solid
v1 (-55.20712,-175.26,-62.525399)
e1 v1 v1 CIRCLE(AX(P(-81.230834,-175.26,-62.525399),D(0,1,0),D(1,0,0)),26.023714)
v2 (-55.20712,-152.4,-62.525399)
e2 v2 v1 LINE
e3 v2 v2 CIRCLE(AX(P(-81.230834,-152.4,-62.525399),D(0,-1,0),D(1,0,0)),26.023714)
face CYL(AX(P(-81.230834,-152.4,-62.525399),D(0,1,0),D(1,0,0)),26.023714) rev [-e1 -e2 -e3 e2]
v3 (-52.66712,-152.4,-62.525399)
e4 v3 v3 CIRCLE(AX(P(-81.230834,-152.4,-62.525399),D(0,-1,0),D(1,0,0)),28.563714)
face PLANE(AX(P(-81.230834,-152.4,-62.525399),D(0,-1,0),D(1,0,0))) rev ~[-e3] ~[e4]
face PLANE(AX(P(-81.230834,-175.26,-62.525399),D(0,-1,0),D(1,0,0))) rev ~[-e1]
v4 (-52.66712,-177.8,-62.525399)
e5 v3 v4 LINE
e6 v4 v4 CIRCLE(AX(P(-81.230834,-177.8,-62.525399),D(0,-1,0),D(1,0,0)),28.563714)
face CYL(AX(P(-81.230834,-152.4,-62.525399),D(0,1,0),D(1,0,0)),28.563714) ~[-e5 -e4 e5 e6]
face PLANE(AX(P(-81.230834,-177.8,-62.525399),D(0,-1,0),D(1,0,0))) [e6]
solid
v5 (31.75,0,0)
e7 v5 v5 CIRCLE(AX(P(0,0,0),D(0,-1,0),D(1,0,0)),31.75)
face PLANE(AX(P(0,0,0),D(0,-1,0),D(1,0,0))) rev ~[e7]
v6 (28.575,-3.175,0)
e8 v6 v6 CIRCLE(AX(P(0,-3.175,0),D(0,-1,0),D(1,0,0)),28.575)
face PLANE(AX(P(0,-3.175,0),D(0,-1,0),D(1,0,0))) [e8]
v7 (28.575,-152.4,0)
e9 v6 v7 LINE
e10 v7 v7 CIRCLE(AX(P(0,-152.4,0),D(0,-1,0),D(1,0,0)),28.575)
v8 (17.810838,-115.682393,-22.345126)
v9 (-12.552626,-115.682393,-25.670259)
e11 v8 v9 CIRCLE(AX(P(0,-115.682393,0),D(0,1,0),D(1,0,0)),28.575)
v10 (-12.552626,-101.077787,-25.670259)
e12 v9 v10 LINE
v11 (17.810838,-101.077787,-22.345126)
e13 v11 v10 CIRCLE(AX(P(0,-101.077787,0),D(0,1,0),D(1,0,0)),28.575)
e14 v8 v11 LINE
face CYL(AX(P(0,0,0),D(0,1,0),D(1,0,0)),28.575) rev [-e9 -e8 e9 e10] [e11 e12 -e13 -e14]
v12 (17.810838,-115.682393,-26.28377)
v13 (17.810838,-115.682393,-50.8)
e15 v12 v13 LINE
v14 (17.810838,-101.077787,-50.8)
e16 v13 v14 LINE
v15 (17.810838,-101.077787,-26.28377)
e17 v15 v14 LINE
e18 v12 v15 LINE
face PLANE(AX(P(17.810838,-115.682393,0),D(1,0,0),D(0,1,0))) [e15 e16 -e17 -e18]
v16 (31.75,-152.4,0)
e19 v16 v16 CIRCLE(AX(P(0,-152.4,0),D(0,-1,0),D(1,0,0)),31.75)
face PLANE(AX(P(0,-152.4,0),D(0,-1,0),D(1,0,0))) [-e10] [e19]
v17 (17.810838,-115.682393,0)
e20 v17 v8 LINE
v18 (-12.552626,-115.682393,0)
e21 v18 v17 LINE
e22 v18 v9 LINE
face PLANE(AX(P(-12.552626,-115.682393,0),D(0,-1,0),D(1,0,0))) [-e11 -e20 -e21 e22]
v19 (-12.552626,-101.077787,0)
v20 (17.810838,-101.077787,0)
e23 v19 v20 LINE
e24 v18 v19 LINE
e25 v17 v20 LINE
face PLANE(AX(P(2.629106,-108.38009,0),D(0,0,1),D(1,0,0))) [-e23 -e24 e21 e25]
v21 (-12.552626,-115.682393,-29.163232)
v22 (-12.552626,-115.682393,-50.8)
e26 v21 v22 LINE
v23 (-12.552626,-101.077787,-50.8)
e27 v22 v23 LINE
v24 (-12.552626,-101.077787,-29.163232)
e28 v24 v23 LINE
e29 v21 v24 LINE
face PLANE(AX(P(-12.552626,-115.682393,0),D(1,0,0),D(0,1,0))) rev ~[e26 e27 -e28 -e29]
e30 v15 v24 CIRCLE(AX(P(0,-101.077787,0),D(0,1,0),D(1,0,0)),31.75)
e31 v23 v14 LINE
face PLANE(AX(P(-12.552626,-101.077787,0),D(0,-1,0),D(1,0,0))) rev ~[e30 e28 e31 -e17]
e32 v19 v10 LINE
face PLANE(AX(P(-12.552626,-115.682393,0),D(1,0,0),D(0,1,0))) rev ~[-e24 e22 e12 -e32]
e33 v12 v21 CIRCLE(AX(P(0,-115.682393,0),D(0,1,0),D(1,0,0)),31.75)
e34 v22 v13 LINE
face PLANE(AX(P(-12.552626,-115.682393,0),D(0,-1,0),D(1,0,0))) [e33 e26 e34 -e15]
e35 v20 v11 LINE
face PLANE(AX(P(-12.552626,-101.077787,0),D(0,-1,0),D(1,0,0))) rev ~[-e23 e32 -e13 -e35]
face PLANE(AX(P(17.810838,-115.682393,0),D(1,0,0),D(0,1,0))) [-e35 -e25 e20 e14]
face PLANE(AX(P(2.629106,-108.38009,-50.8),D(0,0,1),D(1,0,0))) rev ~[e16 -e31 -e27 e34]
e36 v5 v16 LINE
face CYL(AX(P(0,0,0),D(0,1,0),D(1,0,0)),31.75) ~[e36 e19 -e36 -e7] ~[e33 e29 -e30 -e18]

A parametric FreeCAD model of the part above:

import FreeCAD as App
import Part
import Sketcher

V = App.Vector
Q = App.Units.Quantity


def faces_at(feature, points):
    """Names of the faces that lie closest to the given points."""
    faces = feature.Shape.Faces
    near = lambda p: min(range(len(faces)), key=lambda i: faces[i].distToShape(Part.Vertex(*p))[0])
    return sorted({f"Face{near(p) + 1}" for p in points})


def add_polygon(sketch, points):
    """Adds a closed chain of lines whose ends are joined by coincident constraints."""
    first, n = sketch.GeometryCount, len(points)
    for a, b in zip(points, points[1:] + points[:1]):
        sketch.addGeometry(Part.LineSegment(App.Vector(*a, 0), App.Vector(*b, 0)), False)
    for i in range(n):
        sketch.addConstraint(Sketcher.Constraint("Coincident", first + i, 2, first + (i + 1) % n, 1))

doc = App.newDocument("Part")
body = doc.addObject("PartDesign::Body", "Body")

# Sketch on XZ plane
sketch1 = body.newObject("Sketcher::SketchObject", "Sketch")
sketch1.AttachmentSupport = (doc.getObject("XZ_Plane"), [""])
sketch1.MapMode = "FlatFace"
sketch1.addGeometry(Part.Circle(V(0, 0, 0), V(0, 0, 1), 29), False)
sketch1.addConstraint([
    Sketcher.Constraint("Coincident", 0, 3, -1, 1),
    Sketcher.Constraint("Diameter", 0, Q("2.25 in")),
])
pad1 = body.newObject("PartDesign::Pad", "Pad")
pad1.Profile = sketch1
pad1.Length = Q("0.125 in")

# Sketch on XZ plane
sketch2 = body.newObject("Sketcher::SketchObject", "Sketch001")
sketch2.AttachmentSupport = (doc.getObject("XZ_Plane"), [""])
sketch2.MapMode = "FlatFace"
sketch2.addGeometry([
    Part.Circle(V(0, 0, 0), V(0, 0, 1), 32),
    Part.Circle(V(0, 0, 0), V(0, 0, 1), 29),
], False)
sketch2.addConstraint([
    Sketcher.Constraint("Coincident", 0, 3, -1, 1),
    Sketcher.Constraint("Coincident", 1, 3, -1, 1),
    Sketcher.Constraint("Diameter", 0, Q("2.5 in")),
    Sketcher.Constraint("Diameter", 1, Q("2.25 in")),
])
pad2 = body.newObject("PartDesign::Pad", "Pad001")
pad2.Profile = sketch2
pad2.Length = Q("6 in")

# Sketch on XY plane
sketch3 = body.newObject("Sketcher::SketchObject", "Sketch002")
sketch3.AttachmentSupport = (doc.getObject("XY_Plane"), [""])
sketch3.MapMode = "FlatFace"
add_polygon(sketch3, [(-13, -101), (-13, -116), (18, -116), (18, -101)])  # lines 0-3
sketch3.addConstraint([
    Sketcher.Constraint("Vertical", 0),
    Sketcher.Constraint("Horizontal", 1),
    Sketcher.Constraint("Vertical", 2),
    Sketcher.Constraint("Horizontal", 3),
    Sketcher.Constraint("DistanceX", 1, 1, 1, 2, Q("30.363464 mm")),
    Sketcher.Constraint("DistanceY", 0, 2, 0, 1, Q("14.604605 mm")),
    Sketcher.Constraint("DistanceX", -1, 1, 1, 2, Q("17.810838 mm")),
    Sketcher.Constraint("DistanceY", 0, 2, -1, 1, Q("115.682393 mm")),
])
pad3 = body.newObject("PartDesign::Pad", "Pad002")
pad3.Profile = sketch3
pad3.Length = Q("2 in")
pad3.Reversed = True
body2 = doc.addObject("PartDesign::Body", "Body001")

# Sketch on XZ plane
sketch4 = body2.newObject("Sketcher::SketchObject", "Sketch003")
sketch4.AttachmentSupport = (doc.getObject("XZ_Plane001"), [""])
sketch4.MapMode = "FlatFace"
sketch4.AttachmentOffset = App.Placement(V(0, 0, 6 * 25.4), App.Rotation())
sketch4.addGeometry(Part.Circle(V(-81, -63, 0), V(0, 0, 1), 29), False)
sketch4.addConstraint([
    Sketcher.Constraint("Diameter", 0, Q("57.127428 mm")),
    Sketcher.Constraint("DistanceY", 0, 3, -1, 1, Q("62.525399 mm")),
    Sketcher.Constraint("DistanceX", 0, 3, -1, 1, Q("81.230834 mm")),
])
pad4 = body2.newObject("PartDesign::Pad", "Pad003")
pad4.Profile = sketch4
pad4.Length = Q("1 in")
doc.recompute()

thickness = body2.newObject("PartDesign::Thickness", "Thickness")
thickness.Base = (pad4, faces_at(pad4, [(-81.231, -152.4, -62.525)]))
thickness.Value = Q("0.1 in")
thickness.Reversed = True
thickness.Join = "Arc"

doc.recompute()
